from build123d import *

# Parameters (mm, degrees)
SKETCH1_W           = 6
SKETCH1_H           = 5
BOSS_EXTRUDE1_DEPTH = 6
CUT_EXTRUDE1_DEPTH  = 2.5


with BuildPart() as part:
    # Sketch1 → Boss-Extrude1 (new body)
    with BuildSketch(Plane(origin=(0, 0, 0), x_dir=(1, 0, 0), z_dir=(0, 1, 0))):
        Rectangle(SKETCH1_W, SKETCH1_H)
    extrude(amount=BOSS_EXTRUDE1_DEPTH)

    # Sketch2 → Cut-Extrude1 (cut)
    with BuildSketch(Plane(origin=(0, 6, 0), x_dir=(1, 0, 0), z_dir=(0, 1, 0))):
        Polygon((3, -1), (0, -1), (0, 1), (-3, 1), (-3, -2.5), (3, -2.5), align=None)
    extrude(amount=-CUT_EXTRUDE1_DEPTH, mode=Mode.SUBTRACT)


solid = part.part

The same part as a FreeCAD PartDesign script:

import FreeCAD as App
import Part
import Sketcher

V = App.Vector
Q = App.Units.Quantity


def add_polygon(sketch, points):
    """Adds a closed chain of lines whose ends are joined by coincident constraints."""
    first, n = sketch.GeometryCount, len(points)
    for a, b in zip(points, points[1:] + points[:1]):
        sketch.addGeometry(Part.LineSegment(App.Vector(*a, 0), App.Vector(*b, 0)), False)
    for i in range(n):
        sketch.addConstraint(Sketcher.Constraint("Coincident", first + i, 2, first + (i + 1) % n, 1))

doc = App.newDocument("Part")
params = doc.addObject("Spreadsheet::Sheet", "Params")
for row, (alias, value) in enumerate([
    ("sketch1_width", "6 mm"),
    ("sketch1_height", "5 mm"),
    ("pad1_length", "6 mm"),
    ("sketch2_width", "3 mm"),
    ("sketch2_height", "2 mm"),
    ("sketch2_height2", "3.5 mm"),
    ("pocket1_length", "2.5 mm"),
], start=1):
    params.set(f"A{row}", alias)
    params.set(f"B{row}", "=" + value)
    params.setAlias(f"B{row}", alias)

body = doc.addObject("PartDesign::Body", "Body")

# Sketch on XZ plane
sketch1 = doc.addObject("Sketcher::SketchObject", "Sketch")
body.addObject(sketch1)
sketch1.AttachmentSupport = (doc.XZ_Plane, [""])
sketch1.MapMode = "FlatFace"
add_polygon(sketch1, [(-3, -2), (-3, 2), (3, 2), (3, -2)])  # lines 0-3
sketch1.addConstraint([
    Sketcher.Constraint("Vertical", 0),
    Sketcher.Constraint("Horizontal", 1),
    Sketcher.Constraint("Vertical", 2),
    Sketcher.Constraint("Horizontal", 3),
    Sketcher.Constraint("Symmetric", 0, 2, 2, 2, -1, 1),
    Sketcher.Constraint("DistanceX", 1, 1, 1, 2, Q("6 mm")),
    Sketcher.Constraint("DistanceY", 0, 1, 0, 2, Q("5 mm")),
])
sketch1.setExpression("Constraints[9]", "Params.sketch1_width")
sketch1.setExpression("Constraints[10]", "Params.sketch1_height")
pad1 = doc.addObject("PartDesign::Pad", "Pad")
body.addObject(pad1)
pad1.Profile = sketch1
pad1.setExpression("Length", "Params.pad1_length")
pad1.Reversed = True

# Sketch on XZ plane
sketch2 = doc.addObject("Sketcher::SketchObject", "Sketch001")
body.addObject(sketch2)
sketch2.AttachmentSupport = (doc.XZ_Plane, [""])
sketch2.MapMode = "FlatFace"
sketch2.AttachmentOffset = App.Placement(V(0, 0, -6), App.Rotation())
add_polygon(sketch2, [(3, 1), (0, 1), (0, -1), (-3, -1), (-3, 2.5), (3, 2.5)])  # lines 0-5
sketch2.addConstraint([
    Sketcher.Constraint("Horizontal", 0),
    Sketcher.Constraint("Vertical", 1),
    Sketcher.Constraint("Horizontal", 2),
    Sketcher.Constraint("Vertical", 3),
    Sketcher.Constraint("Horizontal", 4),
    Sketcher.Constraint("Vertical", 5),
    Sketcher.Constraint("Symmetric", 0, 2, 1, 2, -1, 1),
    Sketcher.Constraint("Equal", 0, 2),
    Sketcher.Constraint("DistanceX", 0, 2, 0, 1, Q("3 mm")),
    Sketcher.Constraint("DistanceY", 1, 2, 1, 1, Q("2 mm")),
    Sketcher.Constraint("DistanceY", 3, 1, 3, 2, Q("3.5 mm")),
])
sketch2.setExpression("Constraints[14]", "Params.sketch2_width")
sketch2.setExpression("Constraints[15]", "Params.sketch2_height")
sketch2.setExpression("Constraints[16]", "Params.sketch2_height2")
pocket1 = doc.addObject("PartDesign::Pocket", "Pocket")
body.addObject(pocket1)
pocket1.Profile = sketch2
pocket1.setExpression("Length", "Params.pocket1_length")
pocket1.Reversed = True

doc.recompute()
